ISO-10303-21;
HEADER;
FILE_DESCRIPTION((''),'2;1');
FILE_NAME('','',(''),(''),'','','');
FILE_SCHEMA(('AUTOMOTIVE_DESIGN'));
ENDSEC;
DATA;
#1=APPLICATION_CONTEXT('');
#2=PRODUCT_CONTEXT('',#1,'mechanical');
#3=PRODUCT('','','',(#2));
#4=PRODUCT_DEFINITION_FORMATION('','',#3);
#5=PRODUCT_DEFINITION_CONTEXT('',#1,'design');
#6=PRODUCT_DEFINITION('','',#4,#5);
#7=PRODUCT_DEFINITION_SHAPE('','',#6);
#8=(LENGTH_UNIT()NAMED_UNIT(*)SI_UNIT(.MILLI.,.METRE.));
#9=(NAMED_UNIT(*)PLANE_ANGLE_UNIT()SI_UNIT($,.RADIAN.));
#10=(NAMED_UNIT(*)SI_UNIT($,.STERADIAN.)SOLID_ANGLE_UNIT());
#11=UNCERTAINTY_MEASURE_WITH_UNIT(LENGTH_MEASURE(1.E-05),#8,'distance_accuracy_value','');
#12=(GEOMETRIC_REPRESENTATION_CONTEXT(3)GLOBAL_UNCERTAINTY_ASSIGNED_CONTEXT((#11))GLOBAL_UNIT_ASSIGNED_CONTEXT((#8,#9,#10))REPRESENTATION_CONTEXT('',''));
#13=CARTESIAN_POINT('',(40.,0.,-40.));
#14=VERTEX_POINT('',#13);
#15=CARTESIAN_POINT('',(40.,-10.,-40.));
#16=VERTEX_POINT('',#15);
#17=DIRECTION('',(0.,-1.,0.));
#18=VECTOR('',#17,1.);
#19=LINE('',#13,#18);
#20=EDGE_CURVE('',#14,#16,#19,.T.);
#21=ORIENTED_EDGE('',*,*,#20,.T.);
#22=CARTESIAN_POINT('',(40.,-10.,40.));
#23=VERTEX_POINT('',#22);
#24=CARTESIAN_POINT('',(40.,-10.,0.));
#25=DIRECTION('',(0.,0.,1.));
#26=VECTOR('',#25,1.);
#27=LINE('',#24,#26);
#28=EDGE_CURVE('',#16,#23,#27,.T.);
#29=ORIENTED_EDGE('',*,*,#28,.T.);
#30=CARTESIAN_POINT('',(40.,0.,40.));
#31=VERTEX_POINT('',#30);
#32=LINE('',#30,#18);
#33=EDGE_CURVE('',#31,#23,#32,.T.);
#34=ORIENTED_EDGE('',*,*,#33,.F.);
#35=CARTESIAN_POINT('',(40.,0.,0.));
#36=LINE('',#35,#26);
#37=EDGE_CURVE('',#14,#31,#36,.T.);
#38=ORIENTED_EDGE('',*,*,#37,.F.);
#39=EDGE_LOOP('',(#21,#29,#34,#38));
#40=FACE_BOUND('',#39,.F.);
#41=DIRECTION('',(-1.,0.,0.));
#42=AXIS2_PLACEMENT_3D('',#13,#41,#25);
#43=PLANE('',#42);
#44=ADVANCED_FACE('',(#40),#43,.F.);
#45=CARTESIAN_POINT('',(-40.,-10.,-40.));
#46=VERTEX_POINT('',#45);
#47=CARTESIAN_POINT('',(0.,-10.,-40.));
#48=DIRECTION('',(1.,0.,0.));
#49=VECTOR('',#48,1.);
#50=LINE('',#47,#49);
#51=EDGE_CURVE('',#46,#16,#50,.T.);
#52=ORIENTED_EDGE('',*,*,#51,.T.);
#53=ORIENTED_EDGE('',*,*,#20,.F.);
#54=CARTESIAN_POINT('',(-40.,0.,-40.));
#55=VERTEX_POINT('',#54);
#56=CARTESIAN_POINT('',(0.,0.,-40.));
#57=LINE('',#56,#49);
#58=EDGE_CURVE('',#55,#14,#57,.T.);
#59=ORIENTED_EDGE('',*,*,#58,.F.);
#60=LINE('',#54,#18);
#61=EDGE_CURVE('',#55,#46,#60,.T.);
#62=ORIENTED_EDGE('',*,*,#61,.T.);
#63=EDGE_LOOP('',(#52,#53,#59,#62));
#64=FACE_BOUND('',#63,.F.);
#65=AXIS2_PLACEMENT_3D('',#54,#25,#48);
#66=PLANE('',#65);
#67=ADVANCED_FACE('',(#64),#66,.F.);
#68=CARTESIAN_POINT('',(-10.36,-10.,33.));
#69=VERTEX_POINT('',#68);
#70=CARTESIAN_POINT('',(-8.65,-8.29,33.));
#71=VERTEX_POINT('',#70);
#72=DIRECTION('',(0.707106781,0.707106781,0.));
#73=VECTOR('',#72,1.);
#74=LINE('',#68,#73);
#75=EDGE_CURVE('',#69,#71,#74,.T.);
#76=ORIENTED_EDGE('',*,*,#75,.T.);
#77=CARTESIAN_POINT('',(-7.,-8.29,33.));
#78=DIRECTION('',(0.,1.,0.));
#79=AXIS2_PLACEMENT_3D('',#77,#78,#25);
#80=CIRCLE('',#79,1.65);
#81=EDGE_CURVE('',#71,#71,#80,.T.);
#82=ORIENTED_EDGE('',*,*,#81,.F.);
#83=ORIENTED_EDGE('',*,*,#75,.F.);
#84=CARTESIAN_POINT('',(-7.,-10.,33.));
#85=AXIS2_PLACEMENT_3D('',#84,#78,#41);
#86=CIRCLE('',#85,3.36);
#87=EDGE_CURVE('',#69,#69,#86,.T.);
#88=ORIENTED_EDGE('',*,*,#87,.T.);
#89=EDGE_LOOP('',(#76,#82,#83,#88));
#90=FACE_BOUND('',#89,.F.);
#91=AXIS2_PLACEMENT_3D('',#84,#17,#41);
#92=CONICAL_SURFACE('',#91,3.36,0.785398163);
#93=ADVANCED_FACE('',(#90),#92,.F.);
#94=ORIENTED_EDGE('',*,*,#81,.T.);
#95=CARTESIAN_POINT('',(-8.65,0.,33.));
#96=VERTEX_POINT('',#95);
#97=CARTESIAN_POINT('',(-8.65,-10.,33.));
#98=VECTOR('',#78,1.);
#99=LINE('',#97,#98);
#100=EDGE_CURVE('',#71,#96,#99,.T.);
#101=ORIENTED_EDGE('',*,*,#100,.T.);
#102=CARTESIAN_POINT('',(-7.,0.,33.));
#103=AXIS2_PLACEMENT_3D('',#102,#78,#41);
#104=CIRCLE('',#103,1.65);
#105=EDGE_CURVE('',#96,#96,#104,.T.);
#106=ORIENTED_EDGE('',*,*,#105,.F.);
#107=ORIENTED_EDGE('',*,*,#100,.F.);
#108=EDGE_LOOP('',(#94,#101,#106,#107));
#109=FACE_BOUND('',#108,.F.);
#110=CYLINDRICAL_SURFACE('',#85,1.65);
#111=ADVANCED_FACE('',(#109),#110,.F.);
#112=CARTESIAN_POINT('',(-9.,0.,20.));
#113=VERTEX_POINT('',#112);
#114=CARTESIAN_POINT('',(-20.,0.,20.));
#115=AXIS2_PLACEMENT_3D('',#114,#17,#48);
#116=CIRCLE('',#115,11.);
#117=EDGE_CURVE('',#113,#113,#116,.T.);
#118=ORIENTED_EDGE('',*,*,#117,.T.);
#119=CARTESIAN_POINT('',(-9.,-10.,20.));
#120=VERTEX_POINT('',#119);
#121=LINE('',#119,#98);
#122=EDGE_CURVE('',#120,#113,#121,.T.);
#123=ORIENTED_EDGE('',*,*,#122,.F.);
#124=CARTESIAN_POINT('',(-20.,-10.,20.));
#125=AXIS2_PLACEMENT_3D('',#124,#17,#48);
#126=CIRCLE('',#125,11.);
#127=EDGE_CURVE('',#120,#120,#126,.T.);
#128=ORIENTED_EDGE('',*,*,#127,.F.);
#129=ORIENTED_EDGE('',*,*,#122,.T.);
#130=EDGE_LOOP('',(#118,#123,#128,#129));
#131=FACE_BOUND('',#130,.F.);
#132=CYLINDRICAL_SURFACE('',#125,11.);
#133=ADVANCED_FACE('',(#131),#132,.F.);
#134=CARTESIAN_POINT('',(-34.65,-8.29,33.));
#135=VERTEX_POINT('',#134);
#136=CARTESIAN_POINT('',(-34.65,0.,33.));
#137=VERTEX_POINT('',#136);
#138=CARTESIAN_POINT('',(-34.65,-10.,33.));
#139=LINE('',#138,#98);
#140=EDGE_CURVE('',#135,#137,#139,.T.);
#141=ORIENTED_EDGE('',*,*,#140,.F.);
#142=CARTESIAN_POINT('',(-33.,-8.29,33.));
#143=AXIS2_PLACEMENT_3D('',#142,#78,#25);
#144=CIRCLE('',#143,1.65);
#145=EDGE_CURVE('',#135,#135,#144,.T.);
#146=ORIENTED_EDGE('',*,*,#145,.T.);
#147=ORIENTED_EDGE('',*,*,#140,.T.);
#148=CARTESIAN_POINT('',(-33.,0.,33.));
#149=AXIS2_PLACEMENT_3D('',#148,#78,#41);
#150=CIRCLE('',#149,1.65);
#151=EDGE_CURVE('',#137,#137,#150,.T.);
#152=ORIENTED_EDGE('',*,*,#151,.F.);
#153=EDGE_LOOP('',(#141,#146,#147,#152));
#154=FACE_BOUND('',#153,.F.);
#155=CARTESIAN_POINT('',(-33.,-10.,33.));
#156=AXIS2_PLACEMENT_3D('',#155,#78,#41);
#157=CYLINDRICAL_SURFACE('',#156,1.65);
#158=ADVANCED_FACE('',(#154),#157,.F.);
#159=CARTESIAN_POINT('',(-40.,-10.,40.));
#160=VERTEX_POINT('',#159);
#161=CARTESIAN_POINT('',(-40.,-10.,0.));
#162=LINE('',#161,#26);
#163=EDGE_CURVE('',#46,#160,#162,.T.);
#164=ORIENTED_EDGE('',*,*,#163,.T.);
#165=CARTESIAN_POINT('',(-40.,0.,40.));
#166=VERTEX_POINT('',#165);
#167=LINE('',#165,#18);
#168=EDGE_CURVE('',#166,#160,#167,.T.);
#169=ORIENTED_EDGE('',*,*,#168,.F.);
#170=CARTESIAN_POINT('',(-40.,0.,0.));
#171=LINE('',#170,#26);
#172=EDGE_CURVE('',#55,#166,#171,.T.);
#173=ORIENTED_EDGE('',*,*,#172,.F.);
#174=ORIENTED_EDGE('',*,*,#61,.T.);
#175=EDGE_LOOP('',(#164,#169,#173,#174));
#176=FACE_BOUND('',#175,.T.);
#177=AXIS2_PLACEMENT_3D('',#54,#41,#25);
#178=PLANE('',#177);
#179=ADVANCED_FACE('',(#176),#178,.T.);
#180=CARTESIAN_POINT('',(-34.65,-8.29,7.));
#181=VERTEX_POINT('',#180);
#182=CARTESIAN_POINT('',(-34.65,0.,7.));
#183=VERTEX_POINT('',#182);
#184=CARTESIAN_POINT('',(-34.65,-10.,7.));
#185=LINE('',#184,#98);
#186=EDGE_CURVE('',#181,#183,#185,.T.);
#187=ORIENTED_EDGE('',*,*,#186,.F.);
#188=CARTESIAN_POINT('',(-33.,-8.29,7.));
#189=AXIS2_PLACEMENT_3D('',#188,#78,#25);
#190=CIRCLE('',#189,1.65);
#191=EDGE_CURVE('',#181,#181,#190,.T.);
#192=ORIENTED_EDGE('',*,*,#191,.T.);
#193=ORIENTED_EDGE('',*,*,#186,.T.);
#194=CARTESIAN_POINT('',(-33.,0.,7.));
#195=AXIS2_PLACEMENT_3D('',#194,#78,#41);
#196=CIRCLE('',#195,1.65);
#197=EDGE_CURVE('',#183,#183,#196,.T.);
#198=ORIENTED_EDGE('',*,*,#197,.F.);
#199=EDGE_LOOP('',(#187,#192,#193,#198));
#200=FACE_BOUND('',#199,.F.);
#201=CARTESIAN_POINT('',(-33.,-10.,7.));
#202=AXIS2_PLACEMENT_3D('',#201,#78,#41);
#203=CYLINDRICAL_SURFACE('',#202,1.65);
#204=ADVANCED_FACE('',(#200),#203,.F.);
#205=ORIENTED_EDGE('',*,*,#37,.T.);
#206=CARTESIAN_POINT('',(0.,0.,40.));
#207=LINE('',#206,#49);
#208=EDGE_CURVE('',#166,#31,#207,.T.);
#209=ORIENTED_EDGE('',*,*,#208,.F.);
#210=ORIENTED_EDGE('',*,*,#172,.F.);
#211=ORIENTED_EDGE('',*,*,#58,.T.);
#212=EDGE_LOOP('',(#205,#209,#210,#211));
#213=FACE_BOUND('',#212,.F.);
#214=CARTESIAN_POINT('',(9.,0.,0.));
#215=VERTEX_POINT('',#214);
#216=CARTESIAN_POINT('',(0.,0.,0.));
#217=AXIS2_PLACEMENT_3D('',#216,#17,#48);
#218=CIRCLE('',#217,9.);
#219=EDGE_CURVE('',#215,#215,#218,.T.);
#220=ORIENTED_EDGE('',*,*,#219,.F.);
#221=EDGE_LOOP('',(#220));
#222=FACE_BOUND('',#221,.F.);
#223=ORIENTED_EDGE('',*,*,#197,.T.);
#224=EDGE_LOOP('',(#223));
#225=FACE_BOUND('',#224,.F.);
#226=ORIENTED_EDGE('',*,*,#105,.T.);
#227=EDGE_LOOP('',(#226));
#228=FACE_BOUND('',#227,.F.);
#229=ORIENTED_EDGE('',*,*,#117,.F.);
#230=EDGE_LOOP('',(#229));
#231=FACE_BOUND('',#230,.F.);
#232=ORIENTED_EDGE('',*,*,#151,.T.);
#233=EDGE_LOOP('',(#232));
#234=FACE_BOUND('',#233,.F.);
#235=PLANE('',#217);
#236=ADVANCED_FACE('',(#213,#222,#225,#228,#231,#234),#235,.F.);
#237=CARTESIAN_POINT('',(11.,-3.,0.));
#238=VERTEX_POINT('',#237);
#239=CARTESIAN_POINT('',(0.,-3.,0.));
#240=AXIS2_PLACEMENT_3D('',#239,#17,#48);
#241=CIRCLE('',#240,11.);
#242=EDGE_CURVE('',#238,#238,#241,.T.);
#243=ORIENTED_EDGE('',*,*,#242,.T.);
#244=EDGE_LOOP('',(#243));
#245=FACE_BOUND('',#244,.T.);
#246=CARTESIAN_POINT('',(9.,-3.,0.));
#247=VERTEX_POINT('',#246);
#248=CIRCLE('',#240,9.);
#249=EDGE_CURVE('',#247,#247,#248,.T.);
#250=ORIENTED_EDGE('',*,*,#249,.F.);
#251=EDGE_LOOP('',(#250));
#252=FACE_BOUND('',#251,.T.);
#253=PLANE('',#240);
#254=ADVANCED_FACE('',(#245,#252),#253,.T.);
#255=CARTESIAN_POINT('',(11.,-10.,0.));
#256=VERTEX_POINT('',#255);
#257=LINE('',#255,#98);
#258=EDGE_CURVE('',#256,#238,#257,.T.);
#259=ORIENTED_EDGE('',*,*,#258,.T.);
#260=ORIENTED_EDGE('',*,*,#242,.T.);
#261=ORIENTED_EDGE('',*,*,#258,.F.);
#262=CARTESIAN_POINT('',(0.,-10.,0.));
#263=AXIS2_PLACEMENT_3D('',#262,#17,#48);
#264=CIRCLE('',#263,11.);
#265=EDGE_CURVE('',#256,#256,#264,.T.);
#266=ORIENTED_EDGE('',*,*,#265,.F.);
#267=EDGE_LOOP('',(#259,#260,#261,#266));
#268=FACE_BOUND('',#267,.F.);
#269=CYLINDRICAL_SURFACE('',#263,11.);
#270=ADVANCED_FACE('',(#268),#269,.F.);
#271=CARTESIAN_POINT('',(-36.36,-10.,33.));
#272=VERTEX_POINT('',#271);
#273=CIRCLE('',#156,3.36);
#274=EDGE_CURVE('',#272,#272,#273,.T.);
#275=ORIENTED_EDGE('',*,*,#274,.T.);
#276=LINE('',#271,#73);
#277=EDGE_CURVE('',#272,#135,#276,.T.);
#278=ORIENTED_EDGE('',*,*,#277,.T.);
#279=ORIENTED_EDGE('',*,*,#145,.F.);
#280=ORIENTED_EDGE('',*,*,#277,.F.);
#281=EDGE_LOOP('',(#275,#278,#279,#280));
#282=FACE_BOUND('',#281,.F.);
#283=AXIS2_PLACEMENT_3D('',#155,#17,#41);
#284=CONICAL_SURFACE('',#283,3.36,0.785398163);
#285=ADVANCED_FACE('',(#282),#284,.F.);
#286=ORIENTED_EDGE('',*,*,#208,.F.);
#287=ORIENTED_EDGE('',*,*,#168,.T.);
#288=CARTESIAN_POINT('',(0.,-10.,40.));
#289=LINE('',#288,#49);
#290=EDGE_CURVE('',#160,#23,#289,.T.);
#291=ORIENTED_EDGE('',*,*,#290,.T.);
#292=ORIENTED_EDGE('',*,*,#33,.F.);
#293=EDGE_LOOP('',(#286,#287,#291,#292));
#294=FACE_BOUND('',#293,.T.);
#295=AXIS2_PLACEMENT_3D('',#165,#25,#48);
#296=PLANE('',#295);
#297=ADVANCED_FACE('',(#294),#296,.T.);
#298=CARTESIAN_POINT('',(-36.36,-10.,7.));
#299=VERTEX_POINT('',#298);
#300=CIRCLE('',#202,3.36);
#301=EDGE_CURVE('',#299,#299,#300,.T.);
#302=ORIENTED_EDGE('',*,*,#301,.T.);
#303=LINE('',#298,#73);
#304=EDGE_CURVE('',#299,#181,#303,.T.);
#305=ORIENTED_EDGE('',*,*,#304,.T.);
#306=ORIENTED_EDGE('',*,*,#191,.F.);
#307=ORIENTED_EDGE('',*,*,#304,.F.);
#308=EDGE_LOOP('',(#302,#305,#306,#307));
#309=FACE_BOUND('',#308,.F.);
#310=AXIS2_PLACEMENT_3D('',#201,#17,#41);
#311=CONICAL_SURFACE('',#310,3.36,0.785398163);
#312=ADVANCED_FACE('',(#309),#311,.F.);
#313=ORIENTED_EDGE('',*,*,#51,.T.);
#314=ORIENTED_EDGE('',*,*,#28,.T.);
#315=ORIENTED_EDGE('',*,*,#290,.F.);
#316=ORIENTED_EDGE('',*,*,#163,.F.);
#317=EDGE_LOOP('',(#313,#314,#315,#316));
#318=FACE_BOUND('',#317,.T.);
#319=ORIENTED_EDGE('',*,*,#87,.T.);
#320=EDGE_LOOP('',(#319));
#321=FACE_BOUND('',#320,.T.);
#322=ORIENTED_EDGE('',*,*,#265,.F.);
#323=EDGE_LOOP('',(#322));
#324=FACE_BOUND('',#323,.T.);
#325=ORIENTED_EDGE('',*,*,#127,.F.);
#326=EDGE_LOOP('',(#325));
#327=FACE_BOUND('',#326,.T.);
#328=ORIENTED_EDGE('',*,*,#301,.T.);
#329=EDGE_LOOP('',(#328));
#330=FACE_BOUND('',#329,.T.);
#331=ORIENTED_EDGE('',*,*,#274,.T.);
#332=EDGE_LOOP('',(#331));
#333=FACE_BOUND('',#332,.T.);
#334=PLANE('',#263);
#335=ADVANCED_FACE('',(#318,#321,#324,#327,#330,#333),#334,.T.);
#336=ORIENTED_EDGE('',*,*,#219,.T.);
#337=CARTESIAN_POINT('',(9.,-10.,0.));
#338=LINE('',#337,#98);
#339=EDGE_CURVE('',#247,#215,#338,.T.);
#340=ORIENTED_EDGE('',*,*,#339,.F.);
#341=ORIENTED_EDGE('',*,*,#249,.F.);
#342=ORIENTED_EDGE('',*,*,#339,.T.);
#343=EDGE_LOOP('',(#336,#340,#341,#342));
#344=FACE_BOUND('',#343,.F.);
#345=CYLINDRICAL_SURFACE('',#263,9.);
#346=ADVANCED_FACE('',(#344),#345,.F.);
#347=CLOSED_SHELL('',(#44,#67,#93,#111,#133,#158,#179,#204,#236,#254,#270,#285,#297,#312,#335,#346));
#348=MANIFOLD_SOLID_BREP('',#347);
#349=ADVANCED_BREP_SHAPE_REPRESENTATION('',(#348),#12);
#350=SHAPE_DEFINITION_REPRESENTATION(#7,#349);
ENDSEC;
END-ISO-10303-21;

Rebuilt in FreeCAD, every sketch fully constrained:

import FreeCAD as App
import Part
import Sketcher

V = App.Vector

doc = App.newDocument("Part")
params = doc.addObject("Spreadsheet::Sheet", "Params")
for row, (alias, value) in enumerate([
    ("sketch1_width", "80 mm"),
    ("pad1_length", "10 mm"),
    ("sketch2_diameter", "3.3 mm"),
    ("hole_diameter", "3.3 mm"),
    ("hole_csink_diameter", "6.72 mm"),
    ("sketch3_diameter", "22 mm"),
    ("sketch4_diameter", "18 mm"),
    ("sketch5_diameter", "22 mm"),
    ("pocket3_length", "7 mm"),
], start=1):
    params.set(f"A{row}", alias)
    params.set(f"B{row}", "=" + value)
    params.setAlias(f"B{row}", alias)

body = doc.addObject("PartDesign::Body", "Body")

# Sketch on XZ plane
sketch1 = body.newObject("Sketcher::SketchObject", "Sketch")
sketch1.AttachmentSupport = (doc.getObject("XZ_Plane"), [""])
sketch1.MapMode = "FlatFace"
sketch1.addGeometry(Part.LineSegment(V(-40, 40, 0), V(-40, -40, 0)), False)
sketch1.addGeometry(Part.LineSegment(V(-40, -40, 0), V(40, -40, 0)), False)
sketch1.addGeometry(Part.LineSegment(V(40, -40, 0), V(40, 40, 0)), False)
sketch1.addGeometry(Part.LineSegment(V(40, 40, 0), V(-40, 40, 0)), False)
sketch1.addConstraint(Sketcher.Constraint("Coincident", 0, 2, 1, 1))
sketch1.addConstraint(Sketcher.Constraint("Coincident", 1, 2, 2, 1))
sketch1.addConstraint(Sketcher.Constraint("Coincident", 2, 2, 3, 1))
sketch1.addConstraint(Sketcher.Constraint("Coincident", 3, 2, 0, 1))
sketch1.addConstraint(Sketcher.Constraint("Vertical", 0))
sketch1.addConstraint(Sketcher.Constraint("Horizontal", 1))
sketch1.addConstraint(Sketcher.Constraint("Vertical", 2))
sketch1.addConstraint(Sketcher.Constraint("Horizontal", 3))
sketch1.addConstraint(Sketcher.Constraint("Symmetric", 0, 2, 2, 2, -1, 1))
sketch1.addConstraint(Sketcher.Constraint("Equal", 3, 0))
sketch1.addConstraint(Sketcher.Constraint("DistanceX", 1, 1, 1, 2, 80.0))
sketch1.setExpression("Constraints[10]", "Params.sketch1_width")
pad1 = body.newObject("PartDesign::Pad", "Pad")
pad1.Profile = sketch1
pad1.setExpression("Length", "Params.pad1_length")

# Sketch on XZ plane
sketch2 = body.newObject("Sketcher::SketchObject", "Sketch001")
sketch2.AttachmentSupport = (doc.getObject("XZ_Plane"), [""])
sketch2.MapMode = "FlatFace"
sketch2.AttachmentOffset = App.Placement(V(0, 0, 10), App.Rotation())
sketch2.addGeometry(Part.Circle(V(-33, 33, 0), V(0, 0, 1), 1.65), False)
sketch2.addGeometry(Part.Circle(V(-7, 33, 0), V(0, 0, 1), 1.65), False)
sketch2.addGeometry(Part.Circle(V(-33, 7, 0), V(0, 0, 1), 1.65), False)
sketch2.addConstraint(Sketcher.Constraint("Equal", 0, 1))
sketch2.addConstraint(Sketcher.Constraint("Equal", 1, 2))
sketch2.addConstraint(Sketcher.Constraint("Horizontal", 0, 3, 1, 3))
sketch2.addConstraint(Sketcher.Constraint("Vertical", 0, 3, 2, 3))
sketch2.addConstraint(Sketcher.Constraint("Diameter", 0, 3.3))
sketch2.addConstraint(Sketcher.Constraint("DistanceX", 0, 3, -1, 1, 33.0))
sketch2.addConstraint(Sketcher.Constraint("DistanceY", -1, 1, 0, 3, 33.0))
sketch2.addConstraint(Sketcher.Constraint("DistanceX", 1, 3, -1, 1, 7.0))
sketch2.addConstraint(Sketcher.Constraint("DistanceY", -1, 1, 2, 3, 7.0))
sketch2.setExpression("Constraints[4]", "Params.sketch2_diameter")
doc.recompute()
hole = body.newObject("PartDesign::Hole", "Hole")
hole.Profile = sketch2
hole.ThreadType = "None"
hole.setExpression("Diameter", "Params.hole_diameter")
hole.DepthType = "ThroughAll"
hole.HoleCutType = "Countersink"
hole.setExpression("HoleCutDiameter", "Params.hole_csink_diameter")
hole.HoleCutCountersinkAngle = 90

# Sketch on XZ plane
sketch3 = body.newObject("Sketcher::SketchObject", "Sketch002")
sketch3.AttachmentSupport = (doc.getObject("XZ_Plane"), [""])
sketch3.MapMode = "FlatFace"
sketch3.AttachmentOffset = App.Placement(V(0, 0, 10), App.Rotation())
sketch3.addGeometry(Part.Circle(V(-20, 20, 0), V(0, 0, 1), 11), False)
sketch3.addConstraint(Sketcher.Constraint("Diameter", 0, 22.0))
sketch3.addConstraint(Sketcher.Constraint("DistanceX", 0, 3, -1, 1, 20.0))
sketch3.addConstraint(Sketcher.Constraint("DistanceY", -1, 1, 0, 3, 20.0))
sketch3.setExpression("Constraints[0]", "Params.sketch3_diameter")
pocket1 = body.newObject("PartDesign::Pocket", "Pocket")
pocket1.Profile = sketch3
pocket1.Type = "ThroughAll"

# Sketch on XZ plane
sketch4 = body.newObject("Sketcher::SketchObject", "Sketch003")
sketch4.AttachmentSupport = (doc.getObject("XZ_Plane"), [""])
sketch4.MapMode = "FlatFace"
sketch4.AttachmentOffset = App.Placement(V(0, 0, 10), App.Rotation())
sketch4.addGeometry(Part.Circle(V(0, 0, 0), V(0, 0, 1), 9), False)
sketch4.addConstraint(Sketcher.Constraint("Coincident", 0, 3, -1, 1))
sketch4.addConstraint(Sketcher.Constraint("Diameter", 0, 18.0))
sketch4.setExpression("Constraints[1]", "Params.sketch4_diameter")
pocket2 = body.newObject("PartDesign::Pocket", "Pocket001")
pocket2.Profile = sketch4
pocket2.Type = "ThroughAll"

# Sketch on XZ plane
sketch5 = body.newObject("Sketcher::SketchObject", "Sketch004")
sketch5.AttachmentSupport = (doc.getObject("XZ_Plane"), [""])
sketch5.MapMode = "FlatFace"
sketch5.AttachmentOffset = App.Placement(V(0, 0, 10), App.Rotation())
sketch5.addGeometry(Part.Circle(V(0, 0, 0), V(0, 0, 1), 11), False)
sketch5.addConstraint(Sketcher.Constraint("Coincident", 0, 3, -1, 1))
sketch5.addConstraint(Sketcher.Constraint("Diameter", 0, 22.0))
sketch5.setExpression("Constraints[1]", "Params.sketch5_diameter")
pocket3 = body.newObject("PartDesign::Pocket", "Pocket002")
pocket3.Profile = sketch5
pocket3.setExpression("Length", "Params.pocket3_length")

doc.recompute()
